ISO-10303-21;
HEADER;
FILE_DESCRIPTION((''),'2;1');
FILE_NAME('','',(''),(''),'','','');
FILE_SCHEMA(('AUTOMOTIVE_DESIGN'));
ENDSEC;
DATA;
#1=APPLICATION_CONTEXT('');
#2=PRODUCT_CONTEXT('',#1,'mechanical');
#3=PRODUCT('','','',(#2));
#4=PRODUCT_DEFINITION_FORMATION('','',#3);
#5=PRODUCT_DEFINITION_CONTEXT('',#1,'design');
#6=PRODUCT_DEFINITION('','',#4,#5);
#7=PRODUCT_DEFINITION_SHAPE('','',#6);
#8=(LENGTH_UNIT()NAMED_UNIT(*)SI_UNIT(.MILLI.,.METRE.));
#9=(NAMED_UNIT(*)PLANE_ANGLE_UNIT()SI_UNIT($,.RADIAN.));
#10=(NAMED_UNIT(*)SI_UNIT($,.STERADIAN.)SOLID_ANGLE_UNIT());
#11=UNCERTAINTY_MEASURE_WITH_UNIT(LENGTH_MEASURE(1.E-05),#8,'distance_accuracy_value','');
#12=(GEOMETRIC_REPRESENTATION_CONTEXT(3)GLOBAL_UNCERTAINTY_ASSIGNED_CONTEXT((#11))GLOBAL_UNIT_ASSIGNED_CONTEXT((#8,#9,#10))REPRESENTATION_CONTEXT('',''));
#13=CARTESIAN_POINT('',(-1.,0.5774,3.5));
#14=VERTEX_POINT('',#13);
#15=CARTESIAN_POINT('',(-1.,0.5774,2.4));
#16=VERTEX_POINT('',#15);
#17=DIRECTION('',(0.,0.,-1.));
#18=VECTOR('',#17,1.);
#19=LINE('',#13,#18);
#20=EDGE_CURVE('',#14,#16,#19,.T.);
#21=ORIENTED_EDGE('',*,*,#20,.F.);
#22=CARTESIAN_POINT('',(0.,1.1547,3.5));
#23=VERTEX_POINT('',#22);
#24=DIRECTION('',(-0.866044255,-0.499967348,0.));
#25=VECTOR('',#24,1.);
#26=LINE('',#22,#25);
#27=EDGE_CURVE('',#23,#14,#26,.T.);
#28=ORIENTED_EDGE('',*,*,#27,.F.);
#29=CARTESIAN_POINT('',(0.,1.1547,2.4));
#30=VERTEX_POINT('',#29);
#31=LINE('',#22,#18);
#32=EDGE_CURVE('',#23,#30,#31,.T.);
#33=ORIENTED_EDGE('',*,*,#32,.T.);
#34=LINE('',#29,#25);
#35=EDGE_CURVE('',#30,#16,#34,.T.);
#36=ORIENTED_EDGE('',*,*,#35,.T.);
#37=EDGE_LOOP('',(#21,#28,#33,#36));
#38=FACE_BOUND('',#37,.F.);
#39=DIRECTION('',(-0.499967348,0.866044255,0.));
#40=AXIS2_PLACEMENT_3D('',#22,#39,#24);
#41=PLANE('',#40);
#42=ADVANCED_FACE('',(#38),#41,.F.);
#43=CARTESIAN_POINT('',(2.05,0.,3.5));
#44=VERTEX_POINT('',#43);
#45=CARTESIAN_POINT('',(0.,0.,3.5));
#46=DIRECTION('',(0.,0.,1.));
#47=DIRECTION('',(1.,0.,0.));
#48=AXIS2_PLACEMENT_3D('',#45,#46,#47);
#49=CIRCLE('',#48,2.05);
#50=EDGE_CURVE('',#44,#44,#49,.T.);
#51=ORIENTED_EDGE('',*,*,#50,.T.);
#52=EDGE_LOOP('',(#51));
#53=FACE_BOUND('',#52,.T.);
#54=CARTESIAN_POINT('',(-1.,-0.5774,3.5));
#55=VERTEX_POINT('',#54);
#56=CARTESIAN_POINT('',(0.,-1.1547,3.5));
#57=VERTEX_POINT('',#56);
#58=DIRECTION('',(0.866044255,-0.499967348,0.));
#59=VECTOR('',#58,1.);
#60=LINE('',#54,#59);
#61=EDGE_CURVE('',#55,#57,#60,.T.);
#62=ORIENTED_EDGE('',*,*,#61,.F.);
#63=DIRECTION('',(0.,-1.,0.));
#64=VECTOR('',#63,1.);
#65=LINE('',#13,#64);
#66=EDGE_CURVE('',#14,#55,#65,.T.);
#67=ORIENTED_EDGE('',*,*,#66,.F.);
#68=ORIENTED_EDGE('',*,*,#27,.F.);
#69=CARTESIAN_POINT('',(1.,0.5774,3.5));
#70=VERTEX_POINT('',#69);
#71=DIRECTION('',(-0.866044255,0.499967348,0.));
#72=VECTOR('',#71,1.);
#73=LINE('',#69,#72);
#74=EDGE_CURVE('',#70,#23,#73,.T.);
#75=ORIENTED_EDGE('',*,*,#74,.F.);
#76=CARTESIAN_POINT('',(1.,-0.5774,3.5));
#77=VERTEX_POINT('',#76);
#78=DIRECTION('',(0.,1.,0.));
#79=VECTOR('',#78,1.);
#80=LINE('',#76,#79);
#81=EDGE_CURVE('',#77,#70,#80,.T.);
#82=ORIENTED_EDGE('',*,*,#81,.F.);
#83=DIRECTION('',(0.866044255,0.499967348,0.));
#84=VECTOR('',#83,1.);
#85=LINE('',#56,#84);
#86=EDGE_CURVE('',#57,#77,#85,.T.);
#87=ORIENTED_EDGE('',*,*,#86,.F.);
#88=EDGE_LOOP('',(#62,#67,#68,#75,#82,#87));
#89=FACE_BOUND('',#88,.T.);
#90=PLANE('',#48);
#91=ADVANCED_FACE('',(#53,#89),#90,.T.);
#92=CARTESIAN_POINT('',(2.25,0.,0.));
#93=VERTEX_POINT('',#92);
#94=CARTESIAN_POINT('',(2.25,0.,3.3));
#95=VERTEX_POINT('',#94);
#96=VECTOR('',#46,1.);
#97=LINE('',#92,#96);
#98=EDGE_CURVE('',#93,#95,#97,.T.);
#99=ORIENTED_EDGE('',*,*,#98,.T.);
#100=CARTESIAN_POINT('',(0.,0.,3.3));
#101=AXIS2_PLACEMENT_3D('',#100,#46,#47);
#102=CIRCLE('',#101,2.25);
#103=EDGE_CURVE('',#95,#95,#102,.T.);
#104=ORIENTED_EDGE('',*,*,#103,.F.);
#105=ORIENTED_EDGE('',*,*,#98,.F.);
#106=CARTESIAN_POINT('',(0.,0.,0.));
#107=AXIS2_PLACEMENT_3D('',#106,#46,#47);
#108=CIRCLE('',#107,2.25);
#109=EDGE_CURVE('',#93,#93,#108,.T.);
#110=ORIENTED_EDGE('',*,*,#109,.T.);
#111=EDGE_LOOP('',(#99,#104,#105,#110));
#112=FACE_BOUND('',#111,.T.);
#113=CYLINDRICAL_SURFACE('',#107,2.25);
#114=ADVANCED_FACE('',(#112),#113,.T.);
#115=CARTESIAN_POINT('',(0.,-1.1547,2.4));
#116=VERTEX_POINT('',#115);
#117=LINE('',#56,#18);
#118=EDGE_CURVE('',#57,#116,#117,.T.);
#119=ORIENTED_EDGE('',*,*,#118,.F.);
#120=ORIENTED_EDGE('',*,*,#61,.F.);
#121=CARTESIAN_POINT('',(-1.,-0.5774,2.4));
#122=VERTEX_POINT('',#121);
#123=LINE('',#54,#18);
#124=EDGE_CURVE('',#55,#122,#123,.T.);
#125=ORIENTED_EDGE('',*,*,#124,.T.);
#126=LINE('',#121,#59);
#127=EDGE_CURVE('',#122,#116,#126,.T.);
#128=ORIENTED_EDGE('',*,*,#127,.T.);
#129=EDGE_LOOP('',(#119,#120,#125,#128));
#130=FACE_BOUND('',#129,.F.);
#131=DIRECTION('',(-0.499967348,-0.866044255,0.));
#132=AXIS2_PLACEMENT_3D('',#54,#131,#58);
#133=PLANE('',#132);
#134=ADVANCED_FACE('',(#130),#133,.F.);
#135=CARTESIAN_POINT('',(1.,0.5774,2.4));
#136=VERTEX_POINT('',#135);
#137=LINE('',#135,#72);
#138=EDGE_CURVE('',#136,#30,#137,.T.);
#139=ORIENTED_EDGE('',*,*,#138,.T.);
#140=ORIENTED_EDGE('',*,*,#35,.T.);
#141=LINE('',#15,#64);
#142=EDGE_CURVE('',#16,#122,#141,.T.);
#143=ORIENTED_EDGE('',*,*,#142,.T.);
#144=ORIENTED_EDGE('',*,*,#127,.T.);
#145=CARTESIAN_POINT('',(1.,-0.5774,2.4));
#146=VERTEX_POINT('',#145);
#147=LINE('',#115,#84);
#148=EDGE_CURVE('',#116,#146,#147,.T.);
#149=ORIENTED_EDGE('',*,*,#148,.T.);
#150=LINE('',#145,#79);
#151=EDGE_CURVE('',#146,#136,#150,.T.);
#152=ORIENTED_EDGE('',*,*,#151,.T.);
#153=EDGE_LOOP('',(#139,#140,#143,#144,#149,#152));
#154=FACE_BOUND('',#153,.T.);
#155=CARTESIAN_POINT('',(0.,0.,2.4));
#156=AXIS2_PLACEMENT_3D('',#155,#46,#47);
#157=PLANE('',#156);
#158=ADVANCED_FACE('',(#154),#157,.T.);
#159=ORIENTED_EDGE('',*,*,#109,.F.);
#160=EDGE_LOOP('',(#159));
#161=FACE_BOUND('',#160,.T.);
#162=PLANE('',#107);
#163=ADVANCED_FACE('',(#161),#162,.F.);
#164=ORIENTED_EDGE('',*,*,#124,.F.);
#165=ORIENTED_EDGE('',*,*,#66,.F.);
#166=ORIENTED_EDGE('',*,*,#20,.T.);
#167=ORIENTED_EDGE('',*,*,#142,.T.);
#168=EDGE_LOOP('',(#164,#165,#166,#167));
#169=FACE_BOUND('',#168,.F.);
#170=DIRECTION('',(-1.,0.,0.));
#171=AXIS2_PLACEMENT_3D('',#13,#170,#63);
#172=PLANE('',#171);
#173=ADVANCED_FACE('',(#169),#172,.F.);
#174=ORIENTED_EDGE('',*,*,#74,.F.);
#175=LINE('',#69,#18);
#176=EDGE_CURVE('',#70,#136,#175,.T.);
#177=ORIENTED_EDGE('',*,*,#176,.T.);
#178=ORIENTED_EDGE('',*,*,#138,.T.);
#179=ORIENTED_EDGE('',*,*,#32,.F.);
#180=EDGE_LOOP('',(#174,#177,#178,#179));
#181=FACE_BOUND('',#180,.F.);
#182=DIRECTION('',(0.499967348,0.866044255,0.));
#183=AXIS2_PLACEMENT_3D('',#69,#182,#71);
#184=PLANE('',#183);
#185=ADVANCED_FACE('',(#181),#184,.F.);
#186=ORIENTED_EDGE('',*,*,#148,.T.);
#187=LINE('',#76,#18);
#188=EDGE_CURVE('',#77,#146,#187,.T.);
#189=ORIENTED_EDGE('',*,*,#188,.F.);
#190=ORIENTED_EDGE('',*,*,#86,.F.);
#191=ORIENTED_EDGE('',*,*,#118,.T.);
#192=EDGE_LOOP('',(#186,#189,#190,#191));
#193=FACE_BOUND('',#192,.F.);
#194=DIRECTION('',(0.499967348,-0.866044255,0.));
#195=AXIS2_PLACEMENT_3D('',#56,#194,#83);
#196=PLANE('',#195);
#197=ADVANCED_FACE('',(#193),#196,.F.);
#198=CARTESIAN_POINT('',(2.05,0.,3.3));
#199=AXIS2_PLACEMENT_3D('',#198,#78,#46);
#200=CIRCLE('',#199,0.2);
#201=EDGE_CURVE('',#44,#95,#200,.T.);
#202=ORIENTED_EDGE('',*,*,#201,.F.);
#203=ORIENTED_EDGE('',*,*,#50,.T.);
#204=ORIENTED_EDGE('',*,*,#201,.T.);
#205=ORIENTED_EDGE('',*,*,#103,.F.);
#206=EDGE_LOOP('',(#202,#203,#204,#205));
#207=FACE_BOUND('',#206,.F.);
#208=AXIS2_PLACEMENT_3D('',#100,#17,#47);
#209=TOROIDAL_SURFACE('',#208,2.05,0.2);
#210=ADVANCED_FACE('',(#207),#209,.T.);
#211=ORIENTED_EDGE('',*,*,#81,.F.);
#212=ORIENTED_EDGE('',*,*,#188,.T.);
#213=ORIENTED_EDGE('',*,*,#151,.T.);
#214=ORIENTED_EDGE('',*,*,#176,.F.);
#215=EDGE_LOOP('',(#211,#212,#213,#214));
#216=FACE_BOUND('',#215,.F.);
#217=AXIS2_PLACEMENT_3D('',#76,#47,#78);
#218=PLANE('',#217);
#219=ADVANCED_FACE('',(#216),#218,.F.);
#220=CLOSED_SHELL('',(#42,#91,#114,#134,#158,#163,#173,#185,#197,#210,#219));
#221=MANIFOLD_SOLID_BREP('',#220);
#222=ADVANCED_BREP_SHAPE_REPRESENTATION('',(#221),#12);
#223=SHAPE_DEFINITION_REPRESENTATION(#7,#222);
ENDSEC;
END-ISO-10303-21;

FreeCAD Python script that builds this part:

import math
import FreeCAD as App
import Part
import Sketcher

V = App.Vector


def add_polygon(sketch, points):
    """Adds a closed chain of lines whose ends are joined by coincident constraints."""
    first, n = sketch.GeometryCount, len(points)
    for a, b in zip(points, points[1:] + points[:1]):
        sketch.addGeometry(Part.LineSegment(App.Vector(*a, 0), App.Vector(*b, 0)), False)
    for i in range(n):
        sketch.addConstraint(Sketcher.Constraint("Coincident", first + i, 2, first + (i + 1) % n, 1))

doc = App.newDocument("Part")
body = doc.addObject("PartDesign::Body", "Body")

sketch1 = body.newObject("Sketcher::SketchObject", "Sketch")
sketch1.AttachmentSupport = (doc.getObject("XZ_Plane"), [""])
sketch1.MapMode = "FlatFace"
sketch1.addGeometry([
    Part.LineSegment(V(0, 0, 0), V(0, 3.5, 0)),
    Part.LineSegment(V(0, 3.5, 0), V(2.05, 3.5, 0)),
    Part.ArcOfCircle(Part.Circle(V(2.05, 3.3, 0), V(0, 0, 1), 0.2), math.radians(0), math.radians(90)),
    Part.LineSegment(V(2.25, 3.3, 0), V(2.25, 0, 0)),
    Part.LineSegment(V(2.25, 0, 0), V(0, 0, 0)),
], False)
sketch1.addConstraint([
    Sketcher.Constraint("Coincident", 0, 2, 1, 1),
    Sketcher.Constraint("Tangent", 1, 2, 2, 2),
    Sketcher.Constraint("Tangent", 2, 1, 3, 1),
    Sketcher.Constraint("Coincident", 3, 2, 4, 1),
    Sketcher.Constraint("Coincident", 4, 2, 0, 1),
    Sketcher.Constraint("Vertical", 0),
    Sketcher.Constraint("Horizontal", 1),
    Sketcher.Constraint("Vertical", 3),
    Sketcher.Constraint("Horizontal", 4),
    Sketcher.Constraint("Coincident", 4, 2, -1, 1),
    Sketcher.Constraint("Radius", 2, 0.2),
    Sketcher.Constraint("DistanceY", 0, 1, 0, 2, 3.5),
    Sketcher.Constraint("DistanceX", 1, 1, 1, 2, 2.05),
])
revolution = body.newObject("PartDesign::Revolution", "Revolution")
revolution.Profile = sketch1
revolution.ReferenceAxis = (sketch1, ["V_Axis"])
revolution.Angle = 360

sketch2 = body.newObject("Sketcher::SketchObject", "Sketch001")
sketch2.AttachmentSupport = (doc.getObject("XY_Plane"), [""])
sketch2.MapMode = "FlatFace"
sketch2.AttachmentOffset = App.Placement(V(0, 0, 3.5), App.Rotation())
add_polygon(sketch2, [(-1, 0.5774), (-1, -0.5774), (0, -1.1547), (1, -0.5774), (1, 0.5774), (0, 1.1547)])
sketch2.addConstraint([
    Sketcher.Constraint("Vertical", 0),
    Sketcher.Constraint("Vertical", 3),
    Sketcher.Constraint("Symmetric", 0, 2, 3, 2, -1, 1),
    Sketcher.Constraint("Symmetric", 1, 2, 4, 2, -1, 1),
    Sketcher.Constraint("PointOnObject", 1, 2, -2),
    Sketcher.Constraint("Parallel", 2, 5),
    Sketcher.Constraint("Horizontal", 0, 2, 2, 2),
    Sketcher.Constraint("DistanceX", 0, 2, -1, 1, 1.0),
    Sketcher.Constraint("DistanceY", 0, 2, 0, 1, 1.1548),
    Sketcher.Constraint("DistanceY", 1, 2, 3, 2, 1.732),
])
pocket1 = body.newObject("PartDesign::Pocket", "Pocket")
pocket1.Profile = sketch2
pocket1.Length = 1.1

doc.recompute()
